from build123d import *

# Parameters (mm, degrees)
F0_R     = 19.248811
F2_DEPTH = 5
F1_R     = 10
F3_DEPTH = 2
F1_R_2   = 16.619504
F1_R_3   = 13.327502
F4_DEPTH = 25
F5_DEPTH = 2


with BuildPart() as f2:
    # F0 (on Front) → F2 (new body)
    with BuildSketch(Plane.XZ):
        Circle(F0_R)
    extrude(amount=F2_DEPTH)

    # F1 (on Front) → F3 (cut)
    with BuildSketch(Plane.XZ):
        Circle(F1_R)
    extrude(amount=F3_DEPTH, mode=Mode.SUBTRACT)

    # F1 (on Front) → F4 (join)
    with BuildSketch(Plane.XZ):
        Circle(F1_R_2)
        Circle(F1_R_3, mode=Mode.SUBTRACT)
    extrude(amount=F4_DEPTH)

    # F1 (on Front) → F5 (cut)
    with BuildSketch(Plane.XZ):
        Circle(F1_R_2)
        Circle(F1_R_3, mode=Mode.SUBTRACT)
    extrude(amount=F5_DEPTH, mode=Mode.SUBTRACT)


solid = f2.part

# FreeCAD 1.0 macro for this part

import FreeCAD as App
import Part
import Sketcher
from FreeCAD import Vector

doc = App.newDocument("Part")
params = doc.addObject("Spreadsheet::Sheet", "Params")
for row, (alias, value) in enumerate([
    ("pad1_length", "5 mm"),
    ("sketch2_diameter", "20 mm"),
    ("pocket1_length", "2 mm"),
    ("pad2_length", "25 mm"),
    ("pocket2_length", "2 mm"),
], start=1):
    params.set(f"A{row}", alias)
    params.set(f"B{row}", "=" + value)
    params.setAlias(f"B{row}", alias)

body = doc.addObject("PartDesign::Body", "Body")

# Sketch on XZ plane
sketch1 = doc.addObject("Sketcher::SketchObject", "Sketch")
body.addObject(sketch1)
sketch1.AttachmentSupport = (doc.XZ_Plane, [""])
sketch1.MapMode = "FlatFace"
sketch1.addGeometry(Part.Circle(Vector(0, 0, 0), Vector(0, 0, 1), 19.248811), False)
sketch1.addConstraint([
    Sketcher.Constraint("Coincident", 0, 3, -1, 1),
    Sketcher.Constraint("Diameter", 0, 38.497622),
])
pad1 = doc.addObject("PartDesign::Pad", "Pad")
body.addObject(pad1)
pad1.Profile = sketch1
pad1.setExpression("Length", "Params.pad1_length")

# Sketch on XZ plane
sketch2 = doc.addObject("Sketcher::SketchObject", "Sketch001")
body.addObject(sketch2)
sketch2.AttachmentSupport = (doc.XZ_Plane, [""])
sketch2.MapMode = "FlatFace"
sketch2.addGeometry(Part.Circle(Vector(0, 0, 0), Vector(0, 0, 1), 10), False)
sketch2.addConstraint([
    Sketcher.Constraint("Coincident", 0, 3, -1, 1),
    Sketcher.Constraint("Diameter", 0, 20.0),
])
sketch2.setExpression("Constraints[1]", "Params.sketch2_diameter")
pocket1 = doc.addObject("PartDesign::Pocket", "Pocket")
body.addObject(pocket1)
pocket1.Profile = sketch2
pocket1.setExpression("Length", "Params.pocket1_length")
pocket1.Reversed = True

# Sketch on XZ plane
sketch3 = doc.addObject("Sketcher::SketchObject", "Sketch002")
body.addObject(sketch3)
sketch3.AttachmentSupport = (doc.XZ_Plane, [""])
sketch3.MapMode = "FlatFace"
sketch3.addGeometry([
    Part.Circle(Vector(0, 0, 0), Vector(0, 0, 1), 16.619504),
    Part.Circle(Vector(0, 0, 0), Vector(0, 0, 1), 13.327502),
], False)
sketch3.addConstraint([
    Sketcher.Constraint("Coincident", 0, 3, -1, 1),
    Sketcher.Constraint("Coincident", 1, 3, -1, 1),
    Sketcher.Constraint("Diameter", 0, 33.239008),
    Sketcher.Constraint("Diameter", 1, 26.655004),
])
pad2 = doc.addObject("PartDesign::Pad", "Pad001")
body.addObject(pad2)
pad2.Profile = sketch3
pad2.setExpression("Length", "Params.pad2_length")

# Sketch on XZ plane
sketch4 = doc.addObject("Sketcher::SketchObject", "Sketch003")
body.addObject(sketch4)
sketch4.AttachmentSupport = (doc.XZ_Plane, [""])
sketch4.MapMode = "FlatFace"
sketch4.addGeometry([
    Part.Circle(Vector(0, 0, 0), Vector(0, 0, 1), 16.619504),
    Part.Circle(Vector(0, 0, 0), Vector(0, 0, 1), 13.327502),
], False)
sketch4.addConstraint([
    Sketcher.Constraint("Coincident", 0, 3, -1, 1),
    Sketcher.Constraint("Coincident", 1, 3, -1, 1),
    Sketcher.Constraint("Diameter", 0, 33.239008),
    Sketcher.Constraint("Diameter", 1, 26.655004),
])
pocket2 = doc.addObject("PartDesign::Pocket", "Pocket001")
body.addObject(pocket2)
pocket2.Profile = sketch4
pocket2.setExpression("Length", "Params.pocket2_length")
pocket2.Reversed = True

doc.recompute()
